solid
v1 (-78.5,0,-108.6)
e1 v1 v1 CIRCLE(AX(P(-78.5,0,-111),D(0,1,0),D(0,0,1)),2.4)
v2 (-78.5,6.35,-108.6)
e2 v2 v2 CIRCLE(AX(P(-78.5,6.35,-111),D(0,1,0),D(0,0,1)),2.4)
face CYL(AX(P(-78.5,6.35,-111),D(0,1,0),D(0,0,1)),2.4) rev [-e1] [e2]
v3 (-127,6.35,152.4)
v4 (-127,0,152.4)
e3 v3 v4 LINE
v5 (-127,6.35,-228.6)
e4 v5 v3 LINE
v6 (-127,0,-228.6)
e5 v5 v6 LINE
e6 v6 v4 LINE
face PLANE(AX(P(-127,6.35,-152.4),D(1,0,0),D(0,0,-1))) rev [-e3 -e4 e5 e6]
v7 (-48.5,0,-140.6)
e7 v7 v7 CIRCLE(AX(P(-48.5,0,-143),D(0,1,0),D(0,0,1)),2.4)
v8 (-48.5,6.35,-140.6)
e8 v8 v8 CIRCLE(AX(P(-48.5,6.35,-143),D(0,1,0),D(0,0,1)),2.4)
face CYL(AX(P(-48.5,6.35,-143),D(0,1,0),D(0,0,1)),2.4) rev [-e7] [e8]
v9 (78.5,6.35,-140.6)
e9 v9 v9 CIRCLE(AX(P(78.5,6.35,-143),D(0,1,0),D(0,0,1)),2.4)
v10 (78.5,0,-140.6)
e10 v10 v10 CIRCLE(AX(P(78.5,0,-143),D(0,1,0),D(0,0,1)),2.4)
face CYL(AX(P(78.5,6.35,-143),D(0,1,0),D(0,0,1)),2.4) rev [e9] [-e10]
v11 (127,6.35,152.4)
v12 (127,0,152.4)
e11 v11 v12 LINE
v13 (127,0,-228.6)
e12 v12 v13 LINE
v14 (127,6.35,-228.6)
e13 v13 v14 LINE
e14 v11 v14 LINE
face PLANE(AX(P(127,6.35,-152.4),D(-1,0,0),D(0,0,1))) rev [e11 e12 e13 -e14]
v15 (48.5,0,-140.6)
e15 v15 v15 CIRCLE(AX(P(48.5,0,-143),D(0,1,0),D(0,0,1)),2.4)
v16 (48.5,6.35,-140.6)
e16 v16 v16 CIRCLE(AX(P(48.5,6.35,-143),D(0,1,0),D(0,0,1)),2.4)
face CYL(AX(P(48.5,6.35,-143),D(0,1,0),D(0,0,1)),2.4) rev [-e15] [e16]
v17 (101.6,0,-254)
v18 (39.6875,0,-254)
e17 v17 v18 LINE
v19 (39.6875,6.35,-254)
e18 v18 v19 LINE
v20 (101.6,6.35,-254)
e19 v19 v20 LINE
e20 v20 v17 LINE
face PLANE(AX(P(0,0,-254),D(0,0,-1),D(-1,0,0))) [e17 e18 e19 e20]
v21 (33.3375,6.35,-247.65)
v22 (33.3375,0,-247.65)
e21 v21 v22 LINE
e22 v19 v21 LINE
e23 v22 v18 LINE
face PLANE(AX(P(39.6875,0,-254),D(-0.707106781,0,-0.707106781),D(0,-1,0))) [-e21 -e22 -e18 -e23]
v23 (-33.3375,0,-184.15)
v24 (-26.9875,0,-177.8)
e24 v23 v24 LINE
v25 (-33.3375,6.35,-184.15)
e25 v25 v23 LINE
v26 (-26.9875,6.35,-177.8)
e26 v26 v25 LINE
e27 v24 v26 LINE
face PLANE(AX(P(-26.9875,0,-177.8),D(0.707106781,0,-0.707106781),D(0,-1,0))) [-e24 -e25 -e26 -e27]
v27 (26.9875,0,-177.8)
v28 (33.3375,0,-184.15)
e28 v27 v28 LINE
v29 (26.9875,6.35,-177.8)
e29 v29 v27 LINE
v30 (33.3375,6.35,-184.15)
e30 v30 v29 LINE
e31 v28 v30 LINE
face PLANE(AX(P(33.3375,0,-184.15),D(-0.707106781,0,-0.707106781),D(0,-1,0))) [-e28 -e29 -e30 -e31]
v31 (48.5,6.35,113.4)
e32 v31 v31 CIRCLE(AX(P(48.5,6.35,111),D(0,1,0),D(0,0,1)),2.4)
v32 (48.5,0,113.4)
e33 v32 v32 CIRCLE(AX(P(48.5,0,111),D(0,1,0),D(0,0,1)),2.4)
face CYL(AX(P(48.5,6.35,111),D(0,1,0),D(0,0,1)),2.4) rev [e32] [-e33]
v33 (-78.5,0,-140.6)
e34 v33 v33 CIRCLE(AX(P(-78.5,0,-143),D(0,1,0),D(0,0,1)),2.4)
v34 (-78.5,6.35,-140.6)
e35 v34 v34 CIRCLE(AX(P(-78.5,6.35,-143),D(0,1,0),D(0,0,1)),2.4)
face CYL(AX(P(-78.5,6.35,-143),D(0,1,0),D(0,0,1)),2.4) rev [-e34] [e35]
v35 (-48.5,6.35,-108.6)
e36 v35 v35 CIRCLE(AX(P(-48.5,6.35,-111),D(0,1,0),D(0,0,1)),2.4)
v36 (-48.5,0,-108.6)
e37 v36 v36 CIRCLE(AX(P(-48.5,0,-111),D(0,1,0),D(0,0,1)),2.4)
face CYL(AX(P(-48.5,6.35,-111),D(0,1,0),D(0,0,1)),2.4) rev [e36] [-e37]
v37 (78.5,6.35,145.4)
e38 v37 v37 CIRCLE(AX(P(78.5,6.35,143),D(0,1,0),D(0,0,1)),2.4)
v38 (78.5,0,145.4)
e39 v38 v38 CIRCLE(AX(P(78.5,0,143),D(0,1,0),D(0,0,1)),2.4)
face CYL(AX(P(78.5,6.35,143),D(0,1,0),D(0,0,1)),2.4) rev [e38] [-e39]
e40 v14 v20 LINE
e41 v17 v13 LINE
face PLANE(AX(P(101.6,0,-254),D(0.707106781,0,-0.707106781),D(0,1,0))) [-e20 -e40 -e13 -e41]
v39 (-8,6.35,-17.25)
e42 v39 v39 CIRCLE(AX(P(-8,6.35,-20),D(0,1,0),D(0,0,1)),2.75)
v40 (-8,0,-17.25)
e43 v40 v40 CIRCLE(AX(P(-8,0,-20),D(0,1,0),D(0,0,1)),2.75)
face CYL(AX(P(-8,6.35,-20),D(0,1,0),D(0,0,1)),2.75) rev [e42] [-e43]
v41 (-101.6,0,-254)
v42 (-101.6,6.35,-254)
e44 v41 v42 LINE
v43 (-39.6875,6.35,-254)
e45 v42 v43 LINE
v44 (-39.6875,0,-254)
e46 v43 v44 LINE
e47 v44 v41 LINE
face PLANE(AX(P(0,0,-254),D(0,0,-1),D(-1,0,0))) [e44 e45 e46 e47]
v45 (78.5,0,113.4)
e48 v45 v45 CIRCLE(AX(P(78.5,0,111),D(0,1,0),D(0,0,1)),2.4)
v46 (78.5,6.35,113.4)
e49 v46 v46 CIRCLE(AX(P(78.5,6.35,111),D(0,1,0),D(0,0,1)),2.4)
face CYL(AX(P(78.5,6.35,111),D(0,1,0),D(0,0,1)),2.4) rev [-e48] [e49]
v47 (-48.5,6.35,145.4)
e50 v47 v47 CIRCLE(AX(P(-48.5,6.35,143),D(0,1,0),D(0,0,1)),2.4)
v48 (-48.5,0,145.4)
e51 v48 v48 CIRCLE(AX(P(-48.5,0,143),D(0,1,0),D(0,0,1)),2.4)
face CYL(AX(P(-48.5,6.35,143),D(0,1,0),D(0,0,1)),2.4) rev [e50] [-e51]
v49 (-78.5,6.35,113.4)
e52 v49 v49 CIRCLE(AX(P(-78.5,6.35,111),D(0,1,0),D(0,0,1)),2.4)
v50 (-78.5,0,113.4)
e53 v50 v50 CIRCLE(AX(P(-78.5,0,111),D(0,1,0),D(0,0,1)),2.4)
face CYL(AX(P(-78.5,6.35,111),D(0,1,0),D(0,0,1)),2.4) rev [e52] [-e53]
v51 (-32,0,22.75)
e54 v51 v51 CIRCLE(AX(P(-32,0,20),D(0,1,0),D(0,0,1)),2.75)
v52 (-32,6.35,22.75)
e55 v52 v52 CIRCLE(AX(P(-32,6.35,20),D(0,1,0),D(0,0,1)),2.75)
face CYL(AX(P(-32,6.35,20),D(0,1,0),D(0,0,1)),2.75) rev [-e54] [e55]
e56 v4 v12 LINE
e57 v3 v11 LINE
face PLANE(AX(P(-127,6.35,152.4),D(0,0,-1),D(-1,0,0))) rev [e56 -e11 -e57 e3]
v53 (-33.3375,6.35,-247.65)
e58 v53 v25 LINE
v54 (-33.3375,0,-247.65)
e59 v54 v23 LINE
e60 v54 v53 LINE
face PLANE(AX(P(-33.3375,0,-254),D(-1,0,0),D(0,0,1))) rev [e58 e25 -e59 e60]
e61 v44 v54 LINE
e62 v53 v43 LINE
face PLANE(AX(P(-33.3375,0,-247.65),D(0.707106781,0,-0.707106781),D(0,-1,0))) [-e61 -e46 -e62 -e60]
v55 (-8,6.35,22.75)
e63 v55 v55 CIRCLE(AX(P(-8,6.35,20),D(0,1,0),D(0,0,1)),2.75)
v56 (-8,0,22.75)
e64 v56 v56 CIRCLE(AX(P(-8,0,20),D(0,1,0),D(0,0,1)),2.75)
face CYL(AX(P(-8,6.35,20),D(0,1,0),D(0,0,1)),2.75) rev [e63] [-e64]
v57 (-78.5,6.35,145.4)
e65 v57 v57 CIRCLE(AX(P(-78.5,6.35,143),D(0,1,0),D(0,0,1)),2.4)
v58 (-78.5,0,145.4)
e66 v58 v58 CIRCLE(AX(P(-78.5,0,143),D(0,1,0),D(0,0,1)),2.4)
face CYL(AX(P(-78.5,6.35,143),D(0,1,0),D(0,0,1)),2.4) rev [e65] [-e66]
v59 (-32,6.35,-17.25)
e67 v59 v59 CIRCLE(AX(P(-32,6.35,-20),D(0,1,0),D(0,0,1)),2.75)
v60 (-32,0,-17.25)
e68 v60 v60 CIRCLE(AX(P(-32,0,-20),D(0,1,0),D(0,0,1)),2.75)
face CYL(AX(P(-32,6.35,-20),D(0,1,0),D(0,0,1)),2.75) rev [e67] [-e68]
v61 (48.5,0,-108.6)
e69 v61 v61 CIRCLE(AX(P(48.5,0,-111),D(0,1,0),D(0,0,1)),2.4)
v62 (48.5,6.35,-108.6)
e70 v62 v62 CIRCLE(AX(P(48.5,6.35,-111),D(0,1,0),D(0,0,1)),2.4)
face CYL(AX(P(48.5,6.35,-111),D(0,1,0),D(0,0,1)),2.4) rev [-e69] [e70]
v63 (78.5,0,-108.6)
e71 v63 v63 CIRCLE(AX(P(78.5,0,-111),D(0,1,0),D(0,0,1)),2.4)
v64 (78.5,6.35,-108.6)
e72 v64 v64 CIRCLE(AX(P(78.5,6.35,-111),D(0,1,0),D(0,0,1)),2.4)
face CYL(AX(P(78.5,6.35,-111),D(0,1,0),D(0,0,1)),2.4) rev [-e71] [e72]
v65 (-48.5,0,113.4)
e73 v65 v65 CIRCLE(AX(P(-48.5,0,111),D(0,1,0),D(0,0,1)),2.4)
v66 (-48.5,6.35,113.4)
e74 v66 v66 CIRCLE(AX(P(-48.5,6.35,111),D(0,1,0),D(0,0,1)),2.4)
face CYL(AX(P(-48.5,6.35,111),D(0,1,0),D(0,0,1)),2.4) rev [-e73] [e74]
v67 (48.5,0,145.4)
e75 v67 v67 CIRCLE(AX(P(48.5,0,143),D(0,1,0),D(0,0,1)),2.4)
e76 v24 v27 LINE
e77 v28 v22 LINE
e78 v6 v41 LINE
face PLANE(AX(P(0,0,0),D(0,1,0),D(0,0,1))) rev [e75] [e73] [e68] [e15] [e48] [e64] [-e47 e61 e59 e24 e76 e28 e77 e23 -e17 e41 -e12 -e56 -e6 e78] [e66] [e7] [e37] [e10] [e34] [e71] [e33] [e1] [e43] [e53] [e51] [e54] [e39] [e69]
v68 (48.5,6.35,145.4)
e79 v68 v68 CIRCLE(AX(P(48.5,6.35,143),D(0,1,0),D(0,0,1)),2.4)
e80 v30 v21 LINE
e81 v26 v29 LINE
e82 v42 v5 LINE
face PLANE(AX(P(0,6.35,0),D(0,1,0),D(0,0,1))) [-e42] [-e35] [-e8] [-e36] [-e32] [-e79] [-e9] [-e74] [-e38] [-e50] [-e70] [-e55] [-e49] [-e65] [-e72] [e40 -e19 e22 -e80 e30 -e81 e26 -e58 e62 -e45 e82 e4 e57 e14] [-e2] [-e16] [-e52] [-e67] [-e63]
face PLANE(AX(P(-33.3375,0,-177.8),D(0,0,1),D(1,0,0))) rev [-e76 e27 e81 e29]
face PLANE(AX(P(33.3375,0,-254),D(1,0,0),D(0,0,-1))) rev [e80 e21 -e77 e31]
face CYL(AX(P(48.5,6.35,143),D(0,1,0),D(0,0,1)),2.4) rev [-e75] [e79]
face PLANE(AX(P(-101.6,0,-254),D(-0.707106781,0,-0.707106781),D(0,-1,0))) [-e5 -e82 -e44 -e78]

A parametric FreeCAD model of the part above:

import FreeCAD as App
import Part
import Sketcher
from FreeCAD import Vector
Q = App.Units.Quantity


def edges_at(feature, points):
    """Names of the edges that pass closest to the given points."""
    edges = feature.Shape.Edges
    near = lambda p: min(range(len(edges)), key=lambda i: edges[i].distToShape(Part.Vertex(*p))[0])
    return sorted({f"Edge{near(p) + 1}" for p in points})

doc = App.newDocument("Part")
body = doc.addObject("PartDesign::Body", "Body")

# Sketch on XZ plane
sketch1 = body.newObject("Sketcher::SketchObject", "Sketch")
sketch1.AttachmentSupport = (doc.getObject("XZ_Plane"), [""])
sketch1.MapMode = "FlatFace"
sketch1.addGeometry([
    Part.LineSegment(Vector(-127, -152, 0), Vector(-127, 152, 0)),
    Part.LineSegment(Vector(-127, 152, 0), Vector(127, 152, 0)),
    Part.LineSegment(Vector(127, 152, 0), Vector(127, -152, 0)),
    Part.LineSegment(Vector(127, -152, 0), Vector(-127, -152, 0)),
], False)
sketch1.addConstraint([
    Sketcher.Constraint("Coincident", 0, 2, 1, 1),
    Sketcher.Constraint("Coincident", 1, 2, 2, 1),
    Sketcher.Constraint("Coincident", 2, 2, 3, 1),
    Sketcher.Constraint("Coincident", 3, 2, 0, 1),
    Sketcher.Constraint("Vertical", 0),
    Sketcher.Constraint("Horizontal", 1),
    Sketcher.Constraint("Vertical", 2),
    Sketcher.Constraint("Horizontal", 3),
    Sketcher.Constraint("Symmetric", 0, 2, 2, 2, -1, 1),
    Sketcher.Constraint("DistanceX", 1, 1, 1, 2, Q("10 in")),
    Sketcher.Constraint("DistanceY", 0, 1, 0, 2, Q("12 in")),
])
pad1 = body.newObject("PartDesign::Pad", "Pad")
pad1.Profile = sketch1
pad1.Length = Q("0.25 in")
pad1.Reversed = True

# Sketch on XZ plane
sketch2 = body.newObject("Sketcher::SketchObject", "Sketch001")
sketch2.AttachmentSupport = (doc.getObject("XZ_Plane"), [""])
sketch2.MapMode = "FlatFace"
sketch2.AttachmentOffset = App.Placement(Vector(0, 0, -0.25 * 25.4), App.Rotation())
sketch2.addGeometry([
    Part.Circle(Vector(78.5, 111, 0), Vector(0, 0, 1), 2.4),  # 0
    Part.Circle(Vector(48.5, 111, 0), Vector(0, 0, 1), 2.4),  # 1
    Part.Circle(Vector(48.5, 143, 0), Vector(0, 0, 1), 2.4),  # 2
    Part.Circle(Vector(78.5, 143, 0), Vector(0, 0, 1), 2.4),  # 3
    Part.Circle(Vector(-48.5, 111, 0), Vector(0, 0, 1), 2.4),  # 4
    Part.Circle(Vector(-48.5, 143, 0), Vector(0, 0, 1), 2.4),  # 5
    Part.Circle(Vector(-78.5, 111, 0), Vector(0, 0, 1), 2.4),  # 6
    Part.Circle(Vector(-78.5, 143, 0), Vector(0, 0, 1), 2.4),  # 7
    Part.Circle(Vector(78.5, -143, 0), Vector(0, 0, 1), 2.4),  # 8
    Part.Circle(Vector(78.5, -111, 0), Vector(0, 0, 1), 2.4),  # 9
    Part.Circle(Vector(48.5, -143, 0), Vector(0, 0, 1), 2.4),  # 10
    Part.Circle(Vector(48.5, -111, 0), Vector(0, 0, 1), 2.4),  # 11
    Part.Circle(Vector(-48.5, -143, 0), Vector(0, 0, 1), 2.4),  # 12
    Part.Circle(Vector(-48.5, -111, 0), Vector(0, 0, 1), 2.4),  # 13
    Part.Circle(Vector(-78.5, -143, 0), Vector(0, 0, 1), 2.4),  # 14
    Part.Circle(Vector(-78.5, -111, 0), Vector(0, 0, 1), 2.4),  # 15
], False)
sketch2.addConstraint([
    Sketcher.Constraint("Equal", 0, 1),
    Sketcher.Constraint("Equal", 1, 2),
    Sketcher.Constraint("Equal", 2, 3),
    Sketcher.Constraint("Equal", 3, 4),
    Sketcher.Constraint("Equal", 4, 5),
    Sketcher.Constraint("Equal", 5, 6),
    Sketcher.Constraint("Equal", 6, 7),
    Sketcher.Constraint("Equal", 7, 8),
    Sketcher.Constraint("Equal", 8, 9),
    Sketcher.Constraint("Equal", 9, 10),
    Sketcher.Constraint("Equal", 10, 11),
    Sketcher.Constraint("Equal", 11, 12),
    Sketcher.Constraint("Equal", 12, 13),
    Sketcher.Constraint("Equal", 13, 14),
    Sketcher.Constraint("Equal", 14, 15),
    Sketcher.Constraint("Symmetric", 7, 3, 8, 3, -1, 1),
    Sketcher.Constraint("Symmetric", 6, 3, 9, 3, -1, 1),
    Sketcher.Constraint("Symmetric", 5, 3, 10, 3, -1, 1),
    Sketcher.Constraint("Symmetric", 4, 3, 11, 3, -1, 1),
    Sketcher.Constraint("Symmetric", 2, 3, 12, 3, -1, 1),
    Sketcher.Constraint("Symmetric", 1, 3, 13, 3, -1, 1),
    Sketcher.Constraint("Symmetric", 3, 3, 14, 3, -1, 1),
    Sketcher.Constraint("Symmetric", 0, 3, 15, 3, -1, 1),
    Sketcher.Constraint("Symmetric", 1, 3, 4, 3, -2),
    Sketcher.Constraint("Symmetric", 2, 3, 5, 3, -2),
    Sketcher.Constraint("Symmetric", 0, 3, 6, 3, -2),
    Sketcher.Constraint("Symmetric", 3, 3, 7, 3, -2),
    Sketcher.Constraint("Horizontal", 0, 3, 1, 3),
    Sketcher.Constraint("Horizontal", 2, 3, 3, 3),
    Sketcher.Constraint("Vertical", 1, 3, 2, 3),
    Sketcher.Constraint("Vertical", 0, 3, 3, 3),
    Sketcher.Constraint("DistanceX", 4, 3, 0, 3, Q("5 in")),
    Sketcher.Constraint("DistanceY", 8, 3, 0, 3, Q("10 in")),
    Sketcher.Constraint("Diameter", 0, 4.8),
    Sketcher.Constraint("DistanceX", -1, 1, 0, 3, 78.5),
    Sketcher.Constraint("DistanceY", -1, 1, 0, 3, 111.0),
])
doc.recompute()
hole = body.newObject("PartDesign::Hole", "Hole")
hole.Profile = sketch2
hole.ThreadType = "None"
hole.Diameter = 4.8
hole.DepthType = "Dimension"
hole.Depth = Q("0.25 in")
hole.DrillPoint = "Flat"
hole.Reversed = True

# Sketch on XY plane
sketch3 = body.newObject("Sketcher::SketchObject", "Sketch002")
sketch3.AttachmentSupport = (doc.getObject("XY_Plane"), [""])
sketch3.MapMode = "FlatFace"
sketch3.AttachmentOffset = App.Placement(Vector(0, 0, -6 * 25.4), App.Rotation())
sketch3.addGeometry([
    Part.LineSegment(Vector(127, 6, 0), Vector(127, 0, 0)),
    Part.LineSegment(Vector(127, 0, 0), Vector(-127, 0, 0)),
    Part.LineSegment(Vector(-127, 0, 0), Vector(-127, 6, 0)),
    Part.LineSegment(Vector(-127, 6, 0), Vector(127, 6, 0)),
], False)
sketch3.addConstraint([
    Sketcher.Constraint("Coincident", 0, 2, 1, 1),
    Sketcher.Constraint("Coincident", 1, 2, 2, 1),
    Sketcher.Constraint("Coincident", 2, 2, 3, 1),
    Sketcher.Constraint("Coincident", 3, 2, 0, 1),
    Sketcher.Constraint("Vertical", 0),
    Sketcher.Constraint("Horizontal", 1),
    Sketcher.Constraint("Vertical", 2),
    Sketcher.Constraint("Horizontal", 3),
    Sketcher.Constraint("Symmetric", 0, 2, 1, 2, -1, 1),
    Sketcher.Constraint("DistanceX", 1, 2, 1, 1, Q("10 in")),
    Sketcher.Constraint("DistanceY", 0, 2, 0, 1, Q("0.25 in")),
])
pad2 = body.newObject("PartDesign::Pad", "Pad001")
pad2.Profile = sketch3
pad2.Length = Q("4 in")
pad2.Reversed = True
doc.recompute()

chamfer = body.newObject("PartDesign::Chamfer", "Chamfer")
chamfer.Base = (pad2, edges_at(pad2, [(127, 3.175, -254), (-127, 3.175, -254)]))
chamfer.Size = Q("1 in")

# Sketch on XZ plane
sketch4 = body.newObject("Sketcher::SketchObject", "Sketch003")
sketch4.AttachmentSupport = (doc.getObject("XZ_Plane"), [""])
sketch4.MapMode = "FlatFace"
sketch4.AttachmentOffset = App.Placement(Vector(0, 0, -0.25 * 25.4), App.Rotation())
sketch4.addGeometry([
    Part.LineSegment(Vector(-33, -254, 0), Vector(-33, -178, 0)),
    Part.LineSegment(Vector(-33, -178, 0), Vector(33, -178, 0)),
    Part.LineSegment(Vector(33, -178, 0), Vector(33, -254, 0)),
    Part.LineSegment(Vector(33, -254, 0), Vector(-33, -254, 0)),
], False)
sketch4.addConstraint([
    Sketcher.Constraint("Coincident", 0, 2, 1, 1),
    Sketcher.Constraint("Coincident", 1, 2, 2, 1),
    Sketcher.Constraint("Coincident", 2, 2, 3, 1),
    Sketcher.Constraint("Coincident", 3, 2, 0, 1),
    Sketcher.Constraint("Vertical", 0),
    Sketcher.Constraint("Horizontal", 1),
    Sketcher.Constraint("Vertical", 2),
    Sketcher.Constraint("Horizontal", 3),
    Sketcher.Constraint("DistanceY", 0, 1, 0, 2, Q("3 in")),
    Sketcher.Constraint("DistanceY", 0, 2, -1, 1, Q("7 in")),
    Sketcher.Constraint("DistanceX", 1, 1, 1, 2, Q("2.625 in")),
    Sketcher.Constraint("DistanceX", 0, 2, -1, 1, Q("1.3125 in")),
])
pocket1 = body.newObject("PartDesign::Pocket", "Pocket")
pocket1.Profile = sketch4
pocket1.Type = "ThroughAll"
pocket1.Reversed = True
doc.recompute()

chamfer2 = body.newObject("PartDesign::Chamfer", "Chamfer001")
chamfer2.Base = (pocket1, edges_at(pocket1, [
    (33.337, 3.175, -254),
    (33.337, 3.175, -177.8),
    (-33.337, 3.175, -177.8),
    (-33.337, 3.175, -254),
]))
chamfer2.Size = Q("0.25 in")

# Sketch on XZ plane
sketch5 = body.newObject("Sketcher::SketchObject", "Sketch004")
sketch5.AttachmentSupport = (doc.getObject("XZ_Plane"), [""])
sketch5.MapMode = "FlatFace"
sketch5.AttachmentOffset = App.Placement(Vector(0, 0, -0.25 * 25.4), App.Rotation())
sketch5.addGeometry([
    Part.Circle(Vector(-8, 20, 0), Vector(0, 0, 1), 2.8),
    Part.Circle(Vector(-8, -20, 0), Vector(0, 0, 1), 2.8),
    Part.Circle(Vector(-32, -20, 0), Vector(0, 0, 1), 2.8),
    Part.Circle(Vector(-32, 20, 0), Vector(0, 0, 1), 2.8),
], False)
sketch5.addConstraint([
    Sketcher.Constraint("Equal", 0, 1),
    Sketcher.Constraint("Equal", 1, 2),
    Sketcher.Constraint("Equal", 2, 3),
    Sketcher.Constraint("Symmetric", 0, 3, 1, 3, -1),
    Sketcher.Constraint("Symmetric", 2, 3, 3, 3, -1),
    Sketcher.Constraint("Horizontal", 1, 3, 2, 3),
    Sketcher.Constraint("Diameter", 0, 5.5),
    Sketcher.Constraint("DistanceX", 0, 3, -1, 1, 8.0),
    Sketcher.Constraint("DistanceY", -1, 1, 0, 3, 20.0),
    Sketcher.Constraint("DistanceX", 2, 3, -1, 1, 32.0),
])
doc.recompute()
hole2 = body.newObject("PartDesign::Hole", "Hole001")
hole2.Profile = sketch5
hole2.ThreadType = "None"
hole2.Diameter = 5.5
hole2.DepthType = "ThroughAll"
hole2.Reversed = True

doc.recompute()
